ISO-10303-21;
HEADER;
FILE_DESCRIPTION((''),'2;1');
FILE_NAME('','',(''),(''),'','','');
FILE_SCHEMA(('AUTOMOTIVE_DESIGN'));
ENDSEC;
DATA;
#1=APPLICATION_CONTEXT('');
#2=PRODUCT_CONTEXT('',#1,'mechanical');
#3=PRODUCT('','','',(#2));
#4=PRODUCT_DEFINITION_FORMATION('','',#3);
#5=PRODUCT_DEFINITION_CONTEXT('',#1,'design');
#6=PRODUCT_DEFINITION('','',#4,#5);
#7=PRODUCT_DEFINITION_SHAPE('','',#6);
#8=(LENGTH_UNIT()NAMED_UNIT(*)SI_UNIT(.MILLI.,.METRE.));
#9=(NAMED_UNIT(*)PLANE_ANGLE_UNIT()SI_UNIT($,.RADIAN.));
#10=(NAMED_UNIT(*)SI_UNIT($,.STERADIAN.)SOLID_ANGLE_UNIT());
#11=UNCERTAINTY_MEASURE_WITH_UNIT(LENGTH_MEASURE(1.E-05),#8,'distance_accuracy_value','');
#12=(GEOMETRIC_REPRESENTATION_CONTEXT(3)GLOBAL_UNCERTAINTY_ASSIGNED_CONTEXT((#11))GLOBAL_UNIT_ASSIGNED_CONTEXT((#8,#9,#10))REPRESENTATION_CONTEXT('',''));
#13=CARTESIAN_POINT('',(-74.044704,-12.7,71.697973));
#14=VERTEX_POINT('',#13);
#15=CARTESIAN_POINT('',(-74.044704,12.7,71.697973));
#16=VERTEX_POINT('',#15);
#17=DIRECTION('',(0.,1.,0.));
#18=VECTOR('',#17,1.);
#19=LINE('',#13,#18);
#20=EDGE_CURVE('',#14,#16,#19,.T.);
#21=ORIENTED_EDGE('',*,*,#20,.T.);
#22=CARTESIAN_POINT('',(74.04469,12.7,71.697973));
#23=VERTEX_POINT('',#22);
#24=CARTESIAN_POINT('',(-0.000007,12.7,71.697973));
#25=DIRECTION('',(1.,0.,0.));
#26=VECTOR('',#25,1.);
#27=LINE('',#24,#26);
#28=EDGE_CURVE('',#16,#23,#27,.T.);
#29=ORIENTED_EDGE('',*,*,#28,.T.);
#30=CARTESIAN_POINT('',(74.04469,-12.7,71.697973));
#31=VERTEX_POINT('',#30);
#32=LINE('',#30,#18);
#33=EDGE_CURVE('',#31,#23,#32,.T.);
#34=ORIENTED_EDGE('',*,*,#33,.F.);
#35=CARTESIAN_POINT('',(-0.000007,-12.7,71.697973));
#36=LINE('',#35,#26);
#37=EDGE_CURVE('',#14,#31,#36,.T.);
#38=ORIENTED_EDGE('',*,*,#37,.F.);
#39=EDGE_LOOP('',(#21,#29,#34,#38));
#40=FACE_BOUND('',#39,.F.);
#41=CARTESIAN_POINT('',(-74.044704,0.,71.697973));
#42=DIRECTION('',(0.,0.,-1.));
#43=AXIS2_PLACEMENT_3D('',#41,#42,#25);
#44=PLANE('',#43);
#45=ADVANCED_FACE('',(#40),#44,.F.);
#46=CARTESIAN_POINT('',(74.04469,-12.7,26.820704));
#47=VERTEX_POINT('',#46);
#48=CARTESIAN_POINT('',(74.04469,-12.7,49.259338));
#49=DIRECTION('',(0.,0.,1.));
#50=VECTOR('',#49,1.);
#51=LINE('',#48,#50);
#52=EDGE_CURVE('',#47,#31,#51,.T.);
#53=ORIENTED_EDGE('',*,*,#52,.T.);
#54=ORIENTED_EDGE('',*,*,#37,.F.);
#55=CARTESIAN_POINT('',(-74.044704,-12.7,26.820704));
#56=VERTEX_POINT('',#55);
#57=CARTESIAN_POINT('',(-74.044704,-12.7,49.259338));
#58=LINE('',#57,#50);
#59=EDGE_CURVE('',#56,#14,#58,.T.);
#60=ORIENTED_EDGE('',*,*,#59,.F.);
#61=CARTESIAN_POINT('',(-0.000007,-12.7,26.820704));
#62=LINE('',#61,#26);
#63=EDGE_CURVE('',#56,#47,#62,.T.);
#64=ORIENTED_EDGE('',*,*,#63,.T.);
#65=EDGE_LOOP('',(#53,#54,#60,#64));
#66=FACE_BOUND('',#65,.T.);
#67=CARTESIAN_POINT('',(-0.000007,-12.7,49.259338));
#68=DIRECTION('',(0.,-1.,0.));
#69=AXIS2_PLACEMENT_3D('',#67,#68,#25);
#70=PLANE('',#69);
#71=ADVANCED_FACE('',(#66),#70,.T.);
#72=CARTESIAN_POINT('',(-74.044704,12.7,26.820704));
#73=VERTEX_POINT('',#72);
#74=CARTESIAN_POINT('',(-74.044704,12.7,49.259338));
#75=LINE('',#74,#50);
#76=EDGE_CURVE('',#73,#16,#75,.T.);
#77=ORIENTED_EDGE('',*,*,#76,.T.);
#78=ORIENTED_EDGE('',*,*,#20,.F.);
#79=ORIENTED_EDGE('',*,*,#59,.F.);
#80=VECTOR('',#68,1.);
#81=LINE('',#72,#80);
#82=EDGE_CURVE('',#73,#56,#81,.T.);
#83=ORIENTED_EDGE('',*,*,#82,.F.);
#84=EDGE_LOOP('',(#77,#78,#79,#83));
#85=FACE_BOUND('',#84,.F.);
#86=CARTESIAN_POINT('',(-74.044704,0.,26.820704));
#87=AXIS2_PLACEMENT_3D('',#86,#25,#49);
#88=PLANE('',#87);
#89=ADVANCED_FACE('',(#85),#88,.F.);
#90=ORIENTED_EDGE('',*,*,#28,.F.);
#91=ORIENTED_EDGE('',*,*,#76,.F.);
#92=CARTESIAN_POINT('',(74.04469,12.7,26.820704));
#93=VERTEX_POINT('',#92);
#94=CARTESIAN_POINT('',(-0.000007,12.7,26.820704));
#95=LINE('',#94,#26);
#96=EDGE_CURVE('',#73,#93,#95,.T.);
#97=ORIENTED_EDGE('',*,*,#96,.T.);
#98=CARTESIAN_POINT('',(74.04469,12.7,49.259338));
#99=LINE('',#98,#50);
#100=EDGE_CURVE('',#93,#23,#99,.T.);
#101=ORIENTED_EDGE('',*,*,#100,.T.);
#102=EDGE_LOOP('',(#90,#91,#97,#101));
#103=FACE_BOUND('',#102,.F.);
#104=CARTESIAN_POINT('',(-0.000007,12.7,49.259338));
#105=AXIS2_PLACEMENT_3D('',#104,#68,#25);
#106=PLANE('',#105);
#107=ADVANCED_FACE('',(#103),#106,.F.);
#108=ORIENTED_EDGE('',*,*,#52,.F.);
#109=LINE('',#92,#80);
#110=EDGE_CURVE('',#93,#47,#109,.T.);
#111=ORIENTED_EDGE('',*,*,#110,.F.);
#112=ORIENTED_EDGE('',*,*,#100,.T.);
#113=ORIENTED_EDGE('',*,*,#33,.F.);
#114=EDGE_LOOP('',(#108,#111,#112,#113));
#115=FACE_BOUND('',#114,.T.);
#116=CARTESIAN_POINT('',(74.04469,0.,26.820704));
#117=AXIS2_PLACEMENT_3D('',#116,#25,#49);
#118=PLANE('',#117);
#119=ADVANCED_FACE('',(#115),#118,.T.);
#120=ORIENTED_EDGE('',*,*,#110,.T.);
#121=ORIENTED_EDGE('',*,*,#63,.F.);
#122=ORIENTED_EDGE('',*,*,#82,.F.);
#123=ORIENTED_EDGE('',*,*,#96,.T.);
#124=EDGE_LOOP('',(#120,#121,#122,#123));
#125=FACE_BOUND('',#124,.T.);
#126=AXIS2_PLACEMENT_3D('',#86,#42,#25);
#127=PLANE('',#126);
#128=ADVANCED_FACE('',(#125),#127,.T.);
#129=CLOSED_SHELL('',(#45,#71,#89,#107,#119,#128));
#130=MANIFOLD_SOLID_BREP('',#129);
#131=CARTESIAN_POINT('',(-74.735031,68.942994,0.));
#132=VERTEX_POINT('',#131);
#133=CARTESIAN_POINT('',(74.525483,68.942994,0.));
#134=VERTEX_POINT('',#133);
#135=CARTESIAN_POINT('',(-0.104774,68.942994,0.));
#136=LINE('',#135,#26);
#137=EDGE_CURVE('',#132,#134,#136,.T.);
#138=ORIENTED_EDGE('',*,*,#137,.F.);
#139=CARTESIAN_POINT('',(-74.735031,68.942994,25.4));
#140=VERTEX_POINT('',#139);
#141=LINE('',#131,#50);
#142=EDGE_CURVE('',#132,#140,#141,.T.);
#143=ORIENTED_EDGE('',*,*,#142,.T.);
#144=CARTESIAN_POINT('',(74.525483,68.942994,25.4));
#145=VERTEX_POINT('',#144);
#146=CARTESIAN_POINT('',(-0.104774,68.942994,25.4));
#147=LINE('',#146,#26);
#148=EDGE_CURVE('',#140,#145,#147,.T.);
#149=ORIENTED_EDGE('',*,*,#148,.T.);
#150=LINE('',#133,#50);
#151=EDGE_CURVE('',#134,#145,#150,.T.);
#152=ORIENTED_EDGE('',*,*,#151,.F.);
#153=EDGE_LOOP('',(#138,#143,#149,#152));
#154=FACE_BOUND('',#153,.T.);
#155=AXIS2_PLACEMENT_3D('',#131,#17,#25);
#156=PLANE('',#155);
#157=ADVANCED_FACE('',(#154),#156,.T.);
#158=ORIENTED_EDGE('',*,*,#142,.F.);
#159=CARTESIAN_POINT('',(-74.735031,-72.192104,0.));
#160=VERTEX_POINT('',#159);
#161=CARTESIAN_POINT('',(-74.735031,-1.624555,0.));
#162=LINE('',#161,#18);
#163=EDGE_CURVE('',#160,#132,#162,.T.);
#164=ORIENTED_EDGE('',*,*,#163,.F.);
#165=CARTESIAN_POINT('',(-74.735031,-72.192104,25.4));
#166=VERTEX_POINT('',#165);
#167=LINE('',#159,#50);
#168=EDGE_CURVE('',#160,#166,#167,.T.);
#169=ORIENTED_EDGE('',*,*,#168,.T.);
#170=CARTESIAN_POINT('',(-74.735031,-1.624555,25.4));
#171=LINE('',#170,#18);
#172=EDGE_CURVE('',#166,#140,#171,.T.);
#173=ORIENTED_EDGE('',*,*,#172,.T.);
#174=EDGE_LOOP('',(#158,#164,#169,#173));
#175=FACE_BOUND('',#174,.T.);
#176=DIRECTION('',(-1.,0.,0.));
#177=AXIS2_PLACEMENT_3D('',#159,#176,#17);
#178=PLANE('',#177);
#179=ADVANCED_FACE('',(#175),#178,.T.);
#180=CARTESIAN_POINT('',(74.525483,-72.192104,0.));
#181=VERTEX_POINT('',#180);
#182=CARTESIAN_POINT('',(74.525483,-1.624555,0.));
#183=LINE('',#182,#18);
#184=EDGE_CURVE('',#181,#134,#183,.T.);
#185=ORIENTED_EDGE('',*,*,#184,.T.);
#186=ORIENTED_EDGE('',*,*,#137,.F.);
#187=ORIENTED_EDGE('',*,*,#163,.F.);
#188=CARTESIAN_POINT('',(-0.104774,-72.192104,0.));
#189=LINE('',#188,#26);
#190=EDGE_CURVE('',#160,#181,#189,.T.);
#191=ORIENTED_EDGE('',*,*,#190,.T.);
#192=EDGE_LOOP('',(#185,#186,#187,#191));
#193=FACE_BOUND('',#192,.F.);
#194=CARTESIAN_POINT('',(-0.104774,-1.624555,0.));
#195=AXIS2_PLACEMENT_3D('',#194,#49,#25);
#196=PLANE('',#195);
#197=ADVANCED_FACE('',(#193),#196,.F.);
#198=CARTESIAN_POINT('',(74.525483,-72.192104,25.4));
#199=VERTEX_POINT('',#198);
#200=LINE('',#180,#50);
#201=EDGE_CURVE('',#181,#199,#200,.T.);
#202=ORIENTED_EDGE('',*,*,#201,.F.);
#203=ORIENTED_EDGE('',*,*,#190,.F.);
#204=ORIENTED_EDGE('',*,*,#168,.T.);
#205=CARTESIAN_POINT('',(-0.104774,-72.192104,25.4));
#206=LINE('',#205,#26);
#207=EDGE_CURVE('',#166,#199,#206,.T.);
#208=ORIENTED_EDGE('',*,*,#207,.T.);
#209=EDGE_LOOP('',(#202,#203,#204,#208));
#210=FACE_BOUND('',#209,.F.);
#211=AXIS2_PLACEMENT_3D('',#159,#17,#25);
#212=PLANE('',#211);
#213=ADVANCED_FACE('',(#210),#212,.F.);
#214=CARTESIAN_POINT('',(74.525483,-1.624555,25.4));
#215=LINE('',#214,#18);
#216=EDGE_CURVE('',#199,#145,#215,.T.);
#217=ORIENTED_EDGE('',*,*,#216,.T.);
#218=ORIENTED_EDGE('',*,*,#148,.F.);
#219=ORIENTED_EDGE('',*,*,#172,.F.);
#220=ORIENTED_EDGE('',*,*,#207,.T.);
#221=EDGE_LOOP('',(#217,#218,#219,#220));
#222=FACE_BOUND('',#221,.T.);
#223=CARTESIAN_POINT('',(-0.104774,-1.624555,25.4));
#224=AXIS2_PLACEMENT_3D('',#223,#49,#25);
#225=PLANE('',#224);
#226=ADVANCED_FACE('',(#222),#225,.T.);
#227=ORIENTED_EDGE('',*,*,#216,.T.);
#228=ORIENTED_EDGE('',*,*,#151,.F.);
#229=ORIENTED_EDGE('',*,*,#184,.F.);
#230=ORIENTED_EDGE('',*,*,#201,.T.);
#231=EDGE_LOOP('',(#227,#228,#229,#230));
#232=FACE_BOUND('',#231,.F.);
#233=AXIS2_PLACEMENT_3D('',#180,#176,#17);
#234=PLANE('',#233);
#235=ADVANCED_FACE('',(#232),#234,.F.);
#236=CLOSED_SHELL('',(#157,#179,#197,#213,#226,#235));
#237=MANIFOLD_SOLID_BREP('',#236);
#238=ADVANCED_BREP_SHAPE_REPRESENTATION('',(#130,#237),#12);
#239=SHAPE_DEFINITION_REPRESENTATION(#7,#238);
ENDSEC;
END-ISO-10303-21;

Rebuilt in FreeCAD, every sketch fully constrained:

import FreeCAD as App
import Part
import Sketcher
Q = App.Units.Quantity

doc = App.newDocument("Part")
body = doc.addObject("PartDesign::Body", "Body")

# Sketch on XY plane
sketch1 = body.newObject("Sketcher::SketchObject", "Sketch")
sketch1.AttachmentSupport = (doc.getObject("XY_Plane"), [""])
sketch1.MapMode = "FlatFace"
sketch1.addGeometry([
    Part.LineSegment(App.Vector(-75, 69, 0), App.Vector(-75, -72, 0)),
    Part.LineSegment(App.Vector(-75, -72, 0), App.Vector(75, -72, 0)),
    Part.LineSegment(App.Vector(75, -72, 0), App.Vector(75, 69, 0)),
    Part.LineSegment(App.Vector(75, 69, 0), App.Vector(-75, 69, 0)),
], False)
sketch1.addConstraint([
    Sketcher.Constraint("Coincident", 0, 2, 1, 1),
    Sketcher.Constraint("Coincident", 1, 2, 2, 1),
    Sketcher.Constraint("Coincident", 2, 2, 3, 1),
    Sketcher.Constraint("Coincident", 3, 2, 0, 1),
    Sketcher.Constraint("Vertical", 0),
    Sketcher.Constraint("Horizontal", 1),
    Sketcher.Constraint("Vertical", 2),
    Sketcher.Constraint("Horizontal", 3),
    Sketcher.Constraint("DistanceY", 0, 2, 0, 1, Q("5.5564999 in")),
    Sketcher.Constraint("DistanceX", 1, 1, 1, 2, 149.260514),
    Sketcher.Constraint("DistanceX", 0, 2, -1, 1, 74.735031),
    Sketcher.Constraint("DistanceY", 0, 2, -1, 1, 72.192104),
])
pad1 = body.newObject("PartDesign::Pad", "Pad")
pad1.Profile = sketch1
pad1.Length = Q("1 in")
body2 = doc.addObject("PartDesign::Body", "Body001")

# Sketch on XZ plane
sketch2 = body2.newObject("Sketcher::SketchObject", "Sketch001")
sketch2.AttachmentSupport = (doc.getObject("XZ_Plane001"), [""])
sketch2.MapMode = "FlatFace"
sketch2.addGeometry([
    Part.LineSegment(App.Vector(-74, 72, 0), App.Vector(-74, 27, 0)),
    Part.LineSegment(App.Vector(-74, 27, 0), App.Vector(74, 27, 0)),
    Part.LineSegment(App.Vector(74, 27, 0), App.Vector(74, 72, 0)),
    Part.LineSegment(App.Vector(74, 72, 0), App.Vector(-74, 72, 0)),
], False)
sketch2.addConstraint([
    Sketcher.Constraint("Coincident", 0, 2, 1, 1),
    Sketcher.Constraint("Coincident", 1, 2, 2, 1),
    Sketcher.Constraint("Coincident", 2, 2, 3, 1),
    Sketcher.Constraint("Coincident", 3, 2, 0, 1),
    Sketcher.Constraint("Vertical", 0),
    Sketcher.Constraint("Horizontal", 1),
    Sketcher.Constraint("Vertical", 2),
    Sketcher.Constraint("Horizontal", 3),
    Sketcher.Constraint("DistanceY", 0, 2, 0, 1, 44.877269),
    Sketcher.Constraint("DistanceX", 1, 1, 1, 2, 148.089394),
    Sketcher.Constraint("DistanceX", -1, 1, 1, 2, 74.04469),
    Sketcher.Constraint("DistanceY", -1, 1, 0, 2, 26.820704),
])
pad2 = body2.newObject("PartDesign::Pad", "Pad001")
pad2.Profile = sketch2
pad2.Length = Q("1 in")
pad2.Midplane = True

doc.recompute()
